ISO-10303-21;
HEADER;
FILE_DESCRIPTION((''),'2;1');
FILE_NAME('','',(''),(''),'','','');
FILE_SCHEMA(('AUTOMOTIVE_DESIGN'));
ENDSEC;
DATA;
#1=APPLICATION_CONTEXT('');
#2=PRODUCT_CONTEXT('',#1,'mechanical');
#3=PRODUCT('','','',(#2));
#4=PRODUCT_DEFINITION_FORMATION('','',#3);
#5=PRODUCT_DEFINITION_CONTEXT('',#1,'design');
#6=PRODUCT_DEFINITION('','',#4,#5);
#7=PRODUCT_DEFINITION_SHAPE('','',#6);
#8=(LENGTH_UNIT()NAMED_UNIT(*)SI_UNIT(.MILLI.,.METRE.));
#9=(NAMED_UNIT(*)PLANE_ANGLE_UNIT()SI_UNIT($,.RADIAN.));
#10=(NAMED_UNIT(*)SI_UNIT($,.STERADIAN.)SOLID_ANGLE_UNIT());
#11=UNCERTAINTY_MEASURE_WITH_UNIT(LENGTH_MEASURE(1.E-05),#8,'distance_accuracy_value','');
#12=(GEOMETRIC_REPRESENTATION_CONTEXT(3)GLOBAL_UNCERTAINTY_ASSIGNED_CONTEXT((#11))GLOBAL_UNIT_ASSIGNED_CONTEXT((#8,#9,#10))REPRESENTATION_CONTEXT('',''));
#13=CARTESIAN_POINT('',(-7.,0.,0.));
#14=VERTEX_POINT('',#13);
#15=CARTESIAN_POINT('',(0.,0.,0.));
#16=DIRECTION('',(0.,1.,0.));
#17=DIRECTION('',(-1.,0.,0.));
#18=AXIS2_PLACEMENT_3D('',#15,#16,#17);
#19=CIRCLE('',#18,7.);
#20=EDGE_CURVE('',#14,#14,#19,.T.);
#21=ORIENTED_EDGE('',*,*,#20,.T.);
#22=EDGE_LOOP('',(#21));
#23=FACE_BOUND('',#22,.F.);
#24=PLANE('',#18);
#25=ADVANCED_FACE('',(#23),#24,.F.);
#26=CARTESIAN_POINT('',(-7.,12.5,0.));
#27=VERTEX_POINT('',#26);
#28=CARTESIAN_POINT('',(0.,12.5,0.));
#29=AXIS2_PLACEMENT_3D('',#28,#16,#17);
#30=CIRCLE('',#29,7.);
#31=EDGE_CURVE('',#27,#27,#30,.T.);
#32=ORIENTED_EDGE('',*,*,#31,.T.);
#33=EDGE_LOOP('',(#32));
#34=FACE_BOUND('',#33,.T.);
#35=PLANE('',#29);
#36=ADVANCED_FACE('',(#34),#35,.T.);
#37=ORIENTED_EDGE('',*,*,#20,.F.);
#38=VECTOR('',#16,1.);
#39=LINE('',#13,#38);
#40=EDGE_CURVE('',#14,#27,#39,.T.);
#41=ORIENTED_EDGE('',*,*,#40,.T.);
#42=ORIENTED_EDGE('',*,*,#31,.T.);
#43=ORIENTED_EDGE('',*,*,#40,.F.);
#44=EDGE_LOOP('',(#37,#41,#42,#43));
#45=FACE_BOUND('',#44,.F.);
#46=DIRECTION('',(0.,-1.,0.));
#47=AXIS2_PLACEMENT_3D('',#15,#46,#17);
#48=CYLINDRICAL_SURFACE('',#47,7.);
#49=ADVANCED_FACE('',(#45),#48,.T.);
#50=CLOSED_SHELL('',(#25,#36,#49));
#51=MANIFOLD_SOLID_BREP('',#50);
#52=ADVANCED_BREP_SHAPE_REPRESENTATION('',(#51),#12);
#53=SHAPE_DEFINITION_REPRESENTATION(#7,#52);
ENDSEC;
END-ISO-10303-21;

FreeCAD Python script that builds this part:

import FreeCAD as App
import Part
import Sketcher
from FreeCAD import Vector
Q = App.Units.Quantity

doc = App.newDocument("Part")
body = doc.addObject("PartDesign::Body", "Body")

# Sketch on XZ plane
sketch1 = body.newObject("Sketcher::SketchObject", "Sketch")
sketch1.AttachmentSupport = (doc.getObject("XZ_Plane"), [""])
sketch1.MapMode = "FlatFace"
sketch1.addGeometry(Part.Circle(Vector(0, 0, 0), Vector(0, 0, 1), 7), False)
sketch1.addConstraint([
    Sketcher.Constraint("Coincident", 0, 3, -1, 1),
    Sketcher.Constraint("Diameter", 0, Q("14 mm")),
])
pad1 = body.newObject("PartDesign::Pad", "Pad")
pad1.Profile = sketch1
pad1.Length = 12.5
pad1.Reversed = True

doc.recompute()
